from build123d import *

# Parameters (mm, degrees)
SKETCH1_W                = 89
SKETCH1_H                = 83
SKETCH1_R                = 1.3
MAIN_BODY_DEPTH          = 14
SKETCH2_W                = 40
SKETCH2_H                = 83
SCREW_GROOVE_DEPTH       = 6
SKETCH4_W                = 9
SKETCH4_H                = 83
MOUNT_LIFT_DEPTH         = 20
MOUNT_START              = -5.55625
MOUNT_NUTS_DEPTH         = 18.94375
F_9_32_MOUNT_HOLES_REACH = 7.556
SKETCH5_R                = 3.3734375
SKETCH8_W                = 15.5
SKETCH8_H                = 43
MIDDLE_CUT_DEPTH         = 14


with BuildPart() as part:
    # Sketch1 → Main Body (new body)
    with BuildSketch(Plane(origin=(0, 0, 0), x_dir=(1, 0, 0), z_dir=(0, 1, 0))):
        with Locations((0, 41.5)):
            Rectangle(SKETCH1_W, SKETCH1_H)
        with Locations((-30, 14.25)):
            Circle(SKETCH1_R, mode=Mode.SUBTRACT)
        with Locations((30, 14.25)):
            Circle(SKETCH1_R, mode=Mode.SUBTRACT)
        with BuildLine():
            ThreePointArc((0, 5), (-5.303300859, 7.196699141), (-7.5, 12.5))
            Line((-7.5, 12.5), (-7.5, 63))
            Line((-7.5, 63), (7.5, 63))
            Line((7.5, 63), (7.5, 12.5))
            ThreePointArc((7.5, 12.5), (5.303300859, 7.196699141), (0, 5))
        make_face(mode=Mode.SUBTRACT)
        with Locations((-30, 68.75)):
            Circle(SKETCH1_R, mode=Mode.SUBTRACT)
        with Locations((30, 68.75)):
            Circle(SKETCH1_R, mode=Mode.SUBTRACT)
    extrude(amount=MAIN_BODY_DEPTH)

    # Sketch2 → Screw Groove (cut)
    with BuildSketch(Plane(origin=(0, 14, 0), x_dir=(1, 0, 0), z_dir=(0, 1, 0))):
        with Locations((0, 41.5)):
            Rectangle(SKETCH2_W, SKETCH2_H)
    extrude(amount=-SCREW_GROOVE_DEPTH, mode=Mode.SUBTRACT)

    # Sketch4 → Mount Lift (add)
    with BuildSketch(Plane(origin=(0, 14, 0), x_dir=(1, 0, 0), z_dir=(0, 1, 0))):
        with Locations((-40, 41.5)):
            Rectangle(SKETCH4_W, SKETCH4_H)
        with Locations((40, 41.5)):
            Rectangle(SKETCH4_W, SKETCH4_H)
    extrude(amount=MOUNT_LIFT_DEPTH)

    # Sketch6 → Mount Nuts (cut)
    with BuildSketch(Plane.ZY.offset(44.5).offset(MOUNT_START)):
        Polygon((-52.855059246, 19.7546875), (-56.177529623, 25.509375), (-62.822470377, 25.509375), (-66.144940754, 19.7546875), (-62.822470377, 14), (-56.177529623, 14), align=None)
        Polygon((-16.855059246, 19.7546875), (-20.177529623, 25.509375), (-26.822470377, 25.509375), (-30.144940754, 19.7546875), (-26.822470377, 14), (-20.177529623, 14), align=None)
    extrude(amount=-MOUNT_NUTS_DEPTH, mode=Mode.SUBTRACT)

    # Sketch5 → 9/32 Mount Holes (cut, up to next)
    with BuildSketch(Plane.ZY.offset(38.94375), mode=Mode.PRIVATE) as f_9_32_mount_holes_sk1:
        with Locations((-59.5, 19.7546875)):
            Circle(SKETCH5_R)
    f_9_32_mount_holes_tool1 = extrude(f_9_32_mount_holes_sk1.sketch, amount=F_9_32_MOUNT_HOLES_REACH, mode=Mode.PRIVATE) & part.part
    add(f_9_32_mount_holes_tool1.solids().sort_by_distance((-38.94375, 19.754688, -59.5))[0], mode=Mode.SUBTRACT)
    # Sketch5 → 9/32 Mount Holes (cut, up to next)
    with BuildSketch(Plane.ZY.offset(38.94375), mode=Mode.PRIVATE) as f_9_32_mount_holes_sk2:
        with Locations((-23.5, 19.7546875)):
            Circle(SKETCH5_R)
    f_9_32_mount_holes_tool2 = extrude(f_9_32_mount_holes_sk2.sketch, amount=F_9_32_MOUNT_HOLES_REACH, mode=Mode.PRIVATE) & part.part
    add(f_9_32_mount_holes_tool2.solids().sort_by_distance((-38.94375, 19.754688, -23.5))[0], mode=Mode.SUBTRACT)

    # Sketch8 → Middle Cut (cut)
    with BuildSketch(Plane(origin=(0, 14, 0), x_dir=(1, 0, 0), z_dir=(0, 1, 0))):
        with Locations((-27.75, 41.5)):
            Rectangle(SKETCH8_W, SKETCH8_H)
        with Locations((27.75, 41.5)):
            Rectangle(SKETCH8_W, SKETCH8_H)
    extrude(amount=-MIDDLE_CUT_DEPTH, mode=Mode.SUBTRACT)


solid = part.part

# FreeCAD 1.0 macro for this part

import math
import FreeCAD as App
import Part
import Sketcher

V = App.Vector
Q = App.Units.Quantity

doc = App.newDocument("Part")
body = doc.addObject("PartDesign::Body", "Body")

# Sketch on XZ plane
sketch1 = doc.addObject("Sketcher::SketchObject", "Sketch")
body.addObject(sketch1)
sketch1.AttachmentSupport = (doc.XZ_Plane, [""])
sketch1.MapMode = "FlatFace"
sketch1.addGeometry(Part.LineSegment(V(-44.5, -83, 0), V(-44.5, 0, 0)), False)
sketch1.addGeometry(Part.LineSegment(V(-44.5, 0, 0), V(44.5, 0, 0)), False)
sketch1.addGeometry(Part.LineSegment(V(44.5, 0, 0), V(44.5, -83, 0)), False)
sketch1.addGeometry(Part.LineSegment(V(44.5, -83, 0), V(-44.5, -83, 0)), False)
sketch1.addGeometry(Part.Circle(V(-30, -14.2, 0), V(0, 0, 1), 1.3), False)
sketch1.addGeometry(Part.Circle(V(30, -14.2, 0), V(0, 0, 1), 1.3), False)
sketch1.addGeometry(Part.ArcOfCircle(Part.Circle(V(0, -12.5, 0), V(0, 0, 1), 7.5), math.radians(0), math.radians(90)), False)
sketch1.addGeometry(Part.ArcOfCircle(Part.Circle(V(0, -12.5, 0), V(0, 0, 1), 7.5), math.radians(90), math.radians(180)), False)
sketch1.addGeometry(Part.LineSegment(V(-7.5, -12.5, 0), V(-7.5, -63, 0)), False)
sketch1.addGeometry(Part.LineSegment(V(-7.5, -63, 0), V(7.5, -63, 0)), False)
sketch1.addGeometry(Part.LineSegment(V(7.5, -63, 0), V(7.5, -12.5, 0)), False)
sketch1.addGeometry(Part.Circle(V(-30, -68.8, 0), V(0, 0, 1), 1.3), False)
sketch1.addGeometry(Part.Circle(V(30, -68.8, 0), V(0, 0, 1), 1.3), False)
sketch1.addConstraint(Sketcher.Constraint("Coincident", 0, 2, 1, 1))
sketch1.addConstraint(Sketcher.Constraint("Coincident", 1, 2, 2, 1))
sketch1.addConstraint(Sketcher.Constraint("Coincident", 2, 2, 3, 1))
sketch1.addConstraint(Sketcher.Constraint("Coincident", 3, 2, 0, 1))
sketch1.addConstraint(Sketcher.Constraint("Tangent", 6, 2, 7, 1))
sketch1.addConstraint(Sketcher.Constraint("Tangent", 7, 2, 8, 1))
sketch1.addConstraint(Sketcher.Constraint("Coincident", 8, 2, 9, 1))
sketch1.addConstraint(Sketcher.Constraint("Coincident", 9, 2, 10, 1))
sketch1.addConstraint(Sketcher.Constraint("Tangent", 10, 2, 6, 1))
sketch1.addConstraint(Sketcher.Constraint("Vertical", 0))
sketch1.addConstraint(Sketcher.Constraint("Horizontal", 1))
sketch1.addConstraint(Sketcher.Constraint("Vertical", 2))
sketch1.addConstraint(Sketcher.Constraint("Horizontal", 3))
sketch1.addConstraint(Sketcher.Constraint("Vertical", 8))
sketch1.addConstraint(Sketcher.Constraint("Horizontal", 9))
sketch1.addConstraint(Sketcher.Constraint("Vertical", 10))
sketch1.addConstraint(Sketcher.Constraint("Equal", 4, 5))
sketch1.addConstraint(Sketcher.Constraint("Equal", 6, 7))
sketch1.addConstraint(Sketcher.Constraint("Equal", 5, 11))
sketch1.addConstraint(Sketcher.Constraint("Equal", 11, 12))
sketch1.addConstraint(Sketcher.Constraint("Symmetric", 0, 2, 1, 2, -1, 1))
sketch1.addConstraint(Sketcher.Constraint("Symmetric", 4, 3, 5, 3, -2))
sketch1.addConstraint(Sketcher.Constraint("Symmetric", 11, 3, 12, 3, -2))
sketch1.addConstraint(Sketcher.Constraint("PointOnObject", 6, 3, -2))
sketch1.addConstraint(Sketcher.Constraint("PointOnObject", 6, 2, -2))
sketch1.addConstraint(Sketcher.Constraint("Vertical", 4, 3, 11, 3))
sketch1.addConstraint(Sketcher.Constraint("Diameter", 4, 2.6))
sketch1.addConstraint(Sketcher.Constraint("Radius", 6, 7.5))
sketch1.addConstraint(Sketcher.Constraint("DistanceX", 1, 1, 1, 2, 89.0))
sketch1.addConstraint(Sketcher.Constraint("DistanceY", 0, 1, 0, 2, 83.0))
sketch1.addConstraint(Sketcher.Constraint("DistanceY", 8, 2, 8, 1, 50.5))
sketch1.addConstraint(Sketcher.Constraint("DistanceX", 4, 3, -1, 1, 30.0))
sketch1.addConstraint(Sketcher.Constraint("DistanceY", 6, 2, -1, 1, 5.0))
sketch1.addConstraint(Sketcher.Constraint("DistanceY", 11, 3, 4, 3, 54.5))
sketch1.addConstraint(Sketcher.Constraint("DistanceY", 4, 3, -1, 1, 14.25))
pad1 = doc.addObject("PartDesign::Pad", "Pad")
body.addObject(pad1)
pad1.Profile = sketch1
pad1.Length = 14
pad1.Reversed = True

# Sketch on XZ plane
sketch2 = doc.addObject("Sketcher::SketchObject", "Sketch001")
body.addObject(sketch2)
sketch2.AttachmentSupport = (doc.XZ_Plane, [""])
sketch2.MapMode = "FlatFace"
sketch2.AttachmentOffset = App.Placement(V(0, 0, -14), App.Rotation())
sketch2.addGeometry(Part.LineSegment(V(-20, -83, 0), V(-20, 0, 0)), False)
sketch2.addGeometry(Part.LineSegment(V(-20, 0, 0), V(20, 0, 0)), False)
sketch2.addGeometry(Part.LineSegment(V(20, 0, 0), V(20, -83, 0)), False)
sketch2.addGeometry(Part.LineSegment(V(20, -83, 0), V(-20, -83, 0)), False)
sketch2.addConstraint(Sketcher.Constraint("Coincident", 0, 2, 1, 1))
sketch2.addConstraint(Sketcher.Constraint("Coincident", 1, 2, 2, 1))
sketch2.addConstraint(Sketcher.Constraint("Coincident", 2, 2, 3, 1))
sketch2.addConstraint(Sketcher.Constraint("Coincident", 3, 2, 0, 1))
sketch2.addConstraint(Sketcher.Constraint("Vertical", 0))
sketch2.addConstraint(Sketcher.Constraint("Horizontal", 1))
sketch2.addConstraint(Sketcher.Constraint("Vertical", 2))
sketch2.addConstraint(Sketcher.Constraint("Horizontal", 3))
sketch2.addConstraint(Sketcher.Constraint("Symmetric", 0, 2, 1, 2, -1, 1))
sketch2.addConstraint(Sketcher.Constraint("DistanceX", 1, 1, 1, 2, 40.0))
sketch2.addConstraint(Sketcher.Constraint("DistanceY", 0, 1, 0, 2, 83.0))
pocket1 = doc.addObject("PartDesign::Pocket", "Pocket")
body.addObject(pocket1)
pocket1.Profile = sketch2
pocket1.Length = 6
pocket1.Reversed = True

# Sketch on XZ plane
sketch3 = doc.addObject("Sketcher::SketchObject", "Sketch002")
body.addObject(sketch3)
sketch3.AttachmentSupport = (doc.XZ_Plane, [""])
sketch3.MapMode = "FlatFace"
sketch3.AttachmentOffset = App.Placement(V(0, 0, -14), App.Rotation())
sketch3.addGeometry(Part.LineSegment(V(-44, -83, 0), V(-44, 0, 0)), False)
sketch3.addGeometry(Part.LineSegment(V(-44, 0, 0), V(-36, 0, 0)), False)
sketch3.addGeometry(Part.LineSegment(V(-36, 0, 0), V(-36, -83, 0)), False)
sketch3.addGeometry(Part.LineSegment(V(-36, -83, 0), V(-44, -83, 0)), False)
sketch3.addGeometry(Part.LineSegment(V(36, -83, 0), V(36, 0, 0)), False)
sketch3.addGeometry(Part.LineSegment(V(36, 0, 0), V(44, 0, 0)), False)
sketch3.addGeometry(Part.LineSegment(V(44, 0, 0), V(44, -83, 0)), False)
sketch3.addGeometry(Part.LineSegment(V(44, -83, 0), V(36, -83, 0)), False)
sketch3.addConstraint(Sketcher.Constraint("Coincident", 0, 2, 1, 1))
sketch3.addConstraint(Sketcher.Constraint("Coincident", 1, 2, 2, 1))
sketch3.addConstraint(Sketcher.Constraint("Coincident", 2, 2, 3, 1))
sketch3.addConstraint(Sketcher.Constraint("Coincident", 3, 2, 0, 1))
sketch3.addConstraint(Sketcher.Constraint("Coincident", 4, 2, 5, 1))
sketch3.addConstraint(Sketcher.Constraint("Coincident", 5, 2, 6, 1))
sketch3.addConstraint(Sketcher.Constraint("Coincident", 6, 2, 7, 1))
sketch3.addConstraint(Sketcher.Constraint("Coincident", 7, 2, 4, 1))
sketch3.addConstraint(Sketcher.Constraint("Vertical", 0))
sketch3.addConstraint(Sketcher.Constraint("Horizontal", 1))
sketch3.addConstraint(Sketcher.Constraint("Vertical", 2))
sketch3.addConstraint(Sketcher.Constraint("Horizontal", 3))
sketch3.addConstraint(Sketcher.Constraint("Vertical", 4))
sketch3.addConstraint(Sketcher.Constraint("Horizontal", 5))
sketch3.addConstraint(Sketcher.Constraint("Vertical", 6))
sketch3.addConstraint(Sketcher.Constraint("Horizontal", 7))
sketch3.addConstraint(Sketcher.Constraint("Symmetric", 1, 2, 4, 2, -1, 1))
sketch3.addConstraint(Sketcher.Constraint("Symmetric", 0, 2, 5, 2, -2))
sketch3.addConstraint(Sketcher.Constraint("Horizontal", 3, 2, 6, 2))
sketch3.addConstraint(Sketcher.Constraint("DistanceX", 1, 1, 1, 2, 9.0))
sketch3.addConstraint(Sketcher.Constraint("DistanceY", 0, 1, 0, 2, 83.0))
sketch3.addConstraint(Sketcher.Constraint("DistanceX", 1, 2, 4, 2, 71.0))
pad2 = doc.addObject("PartDesign::Pad", "Pad001")
body.addObject(pad2)
pad2.Profile = sketch3
pad2.Length = 20
pad2.Reversed = True

# Sketch on YZ plane
sketch4 = doc.addObject("Sketcher::SketchObject", "Sketch003")
body.addObject(sketch4)
sketch4.AttachmentSupport = (doc.YZ_Plane, [""])
sketch4.MapMode = "FlatFace"
sketch4.AttachmentOffset = App.Placement(V(0, 0, -38.94375), App.Rotation())
sketch4.addGeometry(Part.LineSegment(V(20, -53, 0), V(26, -56, 0)), False)
sketch4.addGeometry(Part.LineSegment(V(26, -56, 0), V(26, -63, 0)), False)
sketch4.addGeometry(Part.LineSegment(V(26, -63, 0), V(20, -66, 0)), False)
sketch4.addGeometry(Part.LineSegment(V(20, -66, 0), V(14, -63, 0)), False)
sketch4.addGeometry(Part.LineSegment(V(14, -63, 0), V(14, -56, 0)), False)
sketch4.addGeometry(Part.LineSegment(V(14, -56, 0), V(20, -53, 0)), False)
sketch4.addGeometry(Part.LineSegment(V(20, -17, 0), V(26, -20, 0)), False)
sketch4.addGeometry(Part.LineSegment(V(26, -20, 0), V(26, -27, 0)), False)
sketch4.addGeometry(Part.LineSegment(V(26, -27, 0), V(20, -30, 0)), False)
sketch4.addGeometry(Part.LineSegment(V(20, -30, 0), V(14, -27, 0)), False)
sketch4.addGeometry(Part.LineSegment(V(14, -27, 0), V(14, -20, 0)), False)
sketch4.addGeometry(Part.LineSegment(V(14, -20, 0), V(20, -17, 0)), False)
sketch4.addConstraint(Sketcher.Constraint("Coincident", 0, 2, 1, 1))
sketch4.addConstraint(Sketcher.Constraint("Coincident", 1, 2, 2, 1))
sketch4.addConstraint(Sketcher.Constraint("Coincident", 2, 2, 3, 1))
sketch4.addConstraint(Sketcher.Constraint("Coincident", 3, 2, 4, 1))
sketch4.addConstraint(Sketcher.Constraint("Coincident", 4, 2, 5, 1))
sketch4.addConstraint(Sketcher.Constraint("Coincident", 5, 2, 0, 1))
sketch4.addConstraint(Sketcher.Constraint("Coincident", 6, 2, 7, 1))
sketch4.addConstraint(Sketcher.Constraint("Coincident", 7, 2, 8, 1))
sketch4.addConstraint(Sketcher.Constraint("Coincident", 8, 2, 9, 1))
sketch4.addConstraint(Sketcher.Constraint("Coincident", 9, 2, 10, 1))
sketch4.addConstraint(Sketcher.Constraint("Coincident", 10, 2, 11, 1))
sketch4.addConstraint(Sketcher.Constraint("Coincident", 11, 2, 6, 1))
sketch4.addConstraint(Sketcher.Constraint("Vertical", 1))
sketch4.addConstraint(Sketcher.Constraint("Vertical", 4))
sketch4.addConstraint(Sketcher.Constraint("Vertical", 7))
sketch4.addConstraint(Sketcher.Constraint("Vertical", 10))
sketch4.addConstraint(Sketcher.Constraint("Parallel", 0, 3))
sketch4.addConstraint(Sketcher.Constraint("Parallel", 2, 5))
sketch4.addConstraint(Sketcher.Constraint("Parallel", 3, 6))
sketch4.addConstraint(Sketcher.Constraint("Parallel", 5, 8))
sketch4.addConstraint(Sketcher.Constraint("Parallel", 6, 9))
sketch4.addConstraint(Sketcher.Constraint("Parallel", 8, 11))
sketch4.addConstraint(Sketcher.Constraint("Horizontal", 1, 2, 3, 2))
sketch4.addConstraint(Sketcher.Constraint("Horizontal", 0, 2, 4, 2))
sketch4.addConstraint(Sketcher.Constraint("Horizontal", 7, 2, 9, 2))
sketch4.addConstraint(Sketcher.Constraint("Horizontal", 6, 2, 10, 2))
sketch4.addConstraint(Sketcher.Constraint("Vertical", 2, 2, 5, 2))
sketch4.addConstraint(Sketcher.Constraint("Vertical", 1, 2, 6, 2))
sketch4.addConstraint(Sketcher.Constraint("Vertical", 5, 2, 8, 2))
sketch4.addConstraint(Sketcher.Constraint("Equal", 4, 7))
sketch4.addConstraint(Sketcher.Constraint("Angle", 0, Q("-30 deg")))
sketch4.addConstraint(Sketcher.Constraint("DistanceX", -1, 1, 3, 2, 14.0))
sketch4.addConstraint(Sketcher.Constraint("DistanceY", 0, 2, 6, 2, 36.0))
sketch4.addConstraint(Sketcher.Constraint("DistanceY", 1, 2, 1, 1, 6.644941))
sketch4.addConstraint(Sketcher.Constraint("Distance", 0, 6.644941))
sketch4.addConstraint(Sketcher.Constraint("DistanceY", 0, 2, -1, 1, 56.17753))
pocket2 = doc.addObject("PartDesign::Pocket", "Pocket001")
body.addObject(pocket2)
pocket2.Profile = sketch4
pocket2.Length = 18.94375
pocket2.Reversed = True

# Sketch on YZ plane
sketch5 = doc.addObject("Sketcher::SketchObject", "Sketch004")
body.addObject(sketch5)
sketch5.AttachmentSupport = (doc.YZ_Plane, [""])
sketch5.MapMode = "FlatFace"
sketch5.AttachmentOffset = App.Placement(V(0, 0, -38.94375), App.Rotation())
sketch5.addGeometry(Part.Circle(V(19.8, -59.5, 0), V(0, 0, 1), 3.4), False)
sketch5.addConstraint(Sketcher.Constraint("DistanceY", 0, 3, -1, 1, 59.5))
sketch5.addConstraint(Sketcher.Constraint("Diameter", 0, 6.746875))
sketch5.addConstraint(Sketcher.Constraint("DistanceX", -1, 1, 0, 3, 19.754687))
pocket3 = doc.addObject("PartDesign::Pocket", "Pocket002")
body.addObject(pocket3)
pocket3.Profile = sketch5
pocket3.Type = "UpToFirst"

# Sketch on YZ plane
sketch6 = doc.addObject("Sketcher::SketchObject", "Sketch005")
body.addObject(sketch6)
sketch6.AttachmentSupport = (doc.YZ_Plane, [""])
sketch6.MapMode = "FlatFace"
sketch6.AttachmentOffset = App.Placement(V(0, 0, -38.94375), App.Rotation())
sketch6.addGeometry(Part.Circle(V(19.8, -23.5, 0), V(0, 0, 1), 3.4), False)
sketch6.addConstraint(Sketcher.Constraint("DistanceY", 0, 3, -1, 1, 23.5))
sketch6.addConstraint(Sketcher.Constraint("Diameter", 0, 6.746875))
sketch6.addConstraint(Sketcher.Constraint("DistanceX", -1, 1, 0, 3, 19.754687))
pocket4 = doc.addObject("PartDesign::Pocket", "Pocket003")
body.addObject(pocket4)
pocket4.Profile = sketch6
pocket4.Type = "UpToFirst"

# Sketch on XZ plane
sketch7 = doc.addObject("Sketcher::SketchObject", "Sketch006")
body.addObject(sketch7)
sketch7.AttachmentSupport = (doc.XZ_Plane, [""])
sketch7.MapMode = "FlatFace"
sketch7.AttachmentOffset = App.Placement(V(0, 0, -14), App.Rotation())
sketch7.addGeometry(Part.LineSegment(V(-36, -63, 0), V(-36, -20, 0)), False)
sketch7.addGeometry(Part.LineSegment(V(-36, -20, 0), V(-20, -20, 0)), False)
sketch7.addGeometry(Part.LineSegment(V(-20, -20, 0), V(-20, -63, 0)), False)
sketch7.addGeometry(Part.LineSegment(V(-20, -63, 0), V(-36, -63, 0)), False)
sketch7.addGeometry(Part.LineSegment(V(20, -63, 0), V(20, -20, 0)), False)
sketch7.addGeometry(Part.LineSegment(V(20, -20, 0), V(36, -20, 0)), False)
sketch7.addGeometry(Part.LineSegment(V(36, -20, 0), V(36, -63, 0)), False)
sketch7.addGeometry(Part.LineSegment(V(36, -63, 0), V(20, -63, 0)), False)
sketch7.addConstraint(Sketcher.Constraint("Coincident", 0, 2, 1, 1))
sketch7.addConstraint(Sketcher.Constraint("Coincident", 1, 2, 2, 1))
sketch7.addConstraint(Sketcher.Constraint("Coincident", 2, 2, 3, 1))
sketch7.addConstraint(Sketcher.Constraint("Coincident", 3, 2, 0, 1))
sketch7.addConstraint(Sketcher.Constraint("Coincident", 4, 2, 5, 1))
sketch7.addConstraint(Sketcher.Constraint("Coincident", 5, 2, 6, 1))
sketch7.addConstraint(Sketcher.Constraint("Coincident", 6, 2, 7, 1))
sketch7.addConstraint(Sketcher.Constraint("Coincident", 7, 2, 4, 1))
sketch7.addConstraint(Sketcher.Constraint("Vertical", 0))
sketch7.addConstraint(Sketcher.Constraint("Horizontal", 1))
sketch7.addConstraint(Sketcher.Constraint("Vertical", 2))
sketch7.addConstraint(Sketcher.Constraint("Horizontal", 3))
sketch7.addConstraint(Sketcher.Constraint("Vertical", 4))
sketch7.addConstraint(Sketcher.Constraint("Horizontal", 5))
sketch7.addConstraint(Sketcher.Constraint("Vertical", 6))
sketch7.addConstraint(Sketcher.Constraint("Horizontal", 7))
sketch7.addConstraint(Sketcher.Constraint("Symmetric", 1, 2, 4, 2, -2))
sketch7.addConstraint(Sketcher.Constraint("Symmetric", 3, 2, 6, 2, -2))
sketch7.addConstraint(Sketcher.Constraint("DistanceY", 0, 1, 0, 2, 43.0))
sketch7.addConstraint(Sketcher.Constraint("DistanceX", 1, 1, 1, 2, 15.5))
sketch7.addConstraint(Sketcher.Constraint("DistanceY", 0, 2, -1, 1, 20.0))
sketch7.addConstraint(Sketcher.Constraint("DistanceX", 1, 2, -1, 1, 20.0))
pocket5 = doc.addObject("PartDesign::Pocket", "Pocket004")
body.addObject(pocket5)
pocket5.Profile = sketch7
pocket5.Length = 14
pocket5.Reversed = True

doc.recompute()
